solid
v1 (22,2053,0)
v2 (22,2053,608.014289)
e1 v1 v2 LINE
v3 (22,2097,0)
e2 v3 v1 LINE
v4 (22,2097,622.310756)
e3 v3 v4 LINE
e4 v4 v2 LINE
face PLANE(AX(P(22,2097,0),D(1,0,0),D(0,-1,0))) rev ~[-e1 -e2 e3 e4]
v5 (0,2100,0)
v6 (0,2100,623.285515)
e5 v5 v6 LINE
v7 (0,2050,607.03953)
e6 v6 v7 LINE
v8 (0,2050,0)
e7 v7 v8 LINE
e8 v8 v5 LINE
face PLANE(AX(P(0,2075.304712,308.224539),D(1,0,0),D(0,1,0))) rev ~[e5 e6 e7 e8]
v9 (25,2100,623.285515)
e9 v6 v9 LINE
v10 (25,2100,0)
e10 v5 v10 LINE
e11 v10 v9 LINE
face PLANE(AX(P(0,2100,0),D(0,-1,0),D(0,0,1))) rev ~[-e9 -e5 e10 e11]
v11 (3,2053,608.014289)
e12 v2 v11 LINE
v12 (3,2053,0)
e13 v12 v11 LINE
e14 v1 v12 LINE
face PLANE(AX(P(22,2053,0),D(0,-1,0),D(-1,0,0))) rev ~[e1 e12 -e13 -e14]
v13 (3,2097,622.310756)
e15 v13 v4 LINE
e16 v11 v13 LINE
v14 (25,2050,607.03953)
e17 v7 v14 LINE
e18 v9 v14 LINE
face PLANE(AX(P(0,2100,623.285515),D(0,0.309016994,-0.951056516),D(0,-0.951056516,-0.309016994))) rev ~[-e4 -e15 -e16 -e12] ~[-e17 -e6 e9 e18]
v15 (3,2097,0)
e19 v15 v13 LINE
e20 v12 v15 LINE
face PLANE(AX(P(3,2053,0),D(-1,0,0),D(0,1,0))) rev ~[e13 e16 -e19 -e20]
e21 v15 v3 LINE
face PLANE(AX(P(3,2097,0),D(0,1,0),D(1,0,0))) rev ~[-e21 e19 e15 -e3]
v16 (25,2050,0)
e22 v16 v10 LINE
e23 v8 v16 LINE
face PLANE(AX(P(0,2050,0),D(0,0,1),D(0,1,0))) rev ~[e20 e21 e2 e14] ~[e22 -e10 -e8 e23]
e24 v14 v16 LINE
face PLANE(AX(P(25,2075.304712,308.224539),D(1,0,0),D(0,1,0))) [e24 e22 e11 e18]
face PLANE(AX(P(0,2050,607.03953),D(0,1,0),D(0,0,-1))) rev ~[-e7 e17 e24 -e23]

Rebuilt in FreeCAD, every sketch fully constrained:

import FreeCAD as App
import Part
import Sketcher
from FreeCAD import Vector
Q = App.Units.Quantity


def add_polygon(sketch, points):
    """Adds a closed chain of lines whose ends are joined by coincident constraints."""
    first, n = sketch.GeometryCount, len(points)
    for a, b in zip(points, points[1:] + points[:1]):
        sketch.addGeometry(Part.LineSegment(App.Vector(*a, 0), App.Vector(*b, 0)), False)
    for i in range(n):
        sketch.addConstraint(Sketcher.Constraint("Coincident", first + i, 2, first + (i + 1) % n, 1))

doc = App.newDocument("Part")
body = doc.addObject("PartDesign::Body", "Body")

sketch1 = doc.addObject("Sketcher::SketchObject", "Sketch")
body.addObject(sketch1)
sketch1.AttachmentSupport = (doc.YZ_Plane, [""])
sketch1.MapMode = "FlatFace"
add_polygon(sketch1, [(2050, 607), (2050, 0), (2100, 0), (2100, 623)])
sketch1.addConstraint([
    Sketcher.Constraint("Vertical", 0),
    Sketcher.Constraint("Horizontal", 1),
    Sketcher.Constraint("Vertical", 2),
    Sketcher.Constraint("PointOnObject", 0, 2, -1),
    Sketcher.Constraint("DistanceX", 1, 1, 1, 2, 50.0),
    Sketcher.Constraint("Angle", 3, Q("-162 deg")),
    Sketcher.Constraint("DistanceX", -1, 1, 0, 2, 2050.0),
    Sketcher.Constraint("DistanceY", 0, 2, 0, 1, 607.03953),
])
pad1 = doc.addObject("PartDesign::Pad", "Pad")
body.addObject(pad1)
pad1.Profile = sketch1
pad1.Length = 25

sketch2 = doc.addObject("Sketcher::SketchObject", "Sketch001")
body.addObject(sketch2)
sketch2.AttachmentSupport = (doc.XY_Plane, [""])
sketch2.MapMode = "FlatFace"
add_polygon(sketch2, [(3, 2097), (22, 2097), (22, 2053), (3, 2053)])
sketch2.addConstraint([
    Sketcher.Constraint("Horizontal", 0),
    Sketcher.Constraint("Vertical", 1),
    Sketcher.Constraint("Horizontal", 2),
    Sketcher.Constraint("Vertical", 3),
    Sketcher.Constraint("DistanceX", 0, 1, 0, 2, 19.0),
    Sketcher.Constraint("DistanceY", 1, 2, 1, 1, 44.0),
    Sketcher.Constraint("DistanceX", -1, 1, 0, 2, 22.0),
    Sketcher.Constraint("DistanceY", -1, 1, 0, 2, 2097.0),
])
pocket1 = doc.addObject("PartDesign::Pocket", "Pocket")
body.addObject(pocket1)
pocket1.Profile = sketch2
pocket1.Length = 1000
pocket1.Reversed = True

doc.recompute()
